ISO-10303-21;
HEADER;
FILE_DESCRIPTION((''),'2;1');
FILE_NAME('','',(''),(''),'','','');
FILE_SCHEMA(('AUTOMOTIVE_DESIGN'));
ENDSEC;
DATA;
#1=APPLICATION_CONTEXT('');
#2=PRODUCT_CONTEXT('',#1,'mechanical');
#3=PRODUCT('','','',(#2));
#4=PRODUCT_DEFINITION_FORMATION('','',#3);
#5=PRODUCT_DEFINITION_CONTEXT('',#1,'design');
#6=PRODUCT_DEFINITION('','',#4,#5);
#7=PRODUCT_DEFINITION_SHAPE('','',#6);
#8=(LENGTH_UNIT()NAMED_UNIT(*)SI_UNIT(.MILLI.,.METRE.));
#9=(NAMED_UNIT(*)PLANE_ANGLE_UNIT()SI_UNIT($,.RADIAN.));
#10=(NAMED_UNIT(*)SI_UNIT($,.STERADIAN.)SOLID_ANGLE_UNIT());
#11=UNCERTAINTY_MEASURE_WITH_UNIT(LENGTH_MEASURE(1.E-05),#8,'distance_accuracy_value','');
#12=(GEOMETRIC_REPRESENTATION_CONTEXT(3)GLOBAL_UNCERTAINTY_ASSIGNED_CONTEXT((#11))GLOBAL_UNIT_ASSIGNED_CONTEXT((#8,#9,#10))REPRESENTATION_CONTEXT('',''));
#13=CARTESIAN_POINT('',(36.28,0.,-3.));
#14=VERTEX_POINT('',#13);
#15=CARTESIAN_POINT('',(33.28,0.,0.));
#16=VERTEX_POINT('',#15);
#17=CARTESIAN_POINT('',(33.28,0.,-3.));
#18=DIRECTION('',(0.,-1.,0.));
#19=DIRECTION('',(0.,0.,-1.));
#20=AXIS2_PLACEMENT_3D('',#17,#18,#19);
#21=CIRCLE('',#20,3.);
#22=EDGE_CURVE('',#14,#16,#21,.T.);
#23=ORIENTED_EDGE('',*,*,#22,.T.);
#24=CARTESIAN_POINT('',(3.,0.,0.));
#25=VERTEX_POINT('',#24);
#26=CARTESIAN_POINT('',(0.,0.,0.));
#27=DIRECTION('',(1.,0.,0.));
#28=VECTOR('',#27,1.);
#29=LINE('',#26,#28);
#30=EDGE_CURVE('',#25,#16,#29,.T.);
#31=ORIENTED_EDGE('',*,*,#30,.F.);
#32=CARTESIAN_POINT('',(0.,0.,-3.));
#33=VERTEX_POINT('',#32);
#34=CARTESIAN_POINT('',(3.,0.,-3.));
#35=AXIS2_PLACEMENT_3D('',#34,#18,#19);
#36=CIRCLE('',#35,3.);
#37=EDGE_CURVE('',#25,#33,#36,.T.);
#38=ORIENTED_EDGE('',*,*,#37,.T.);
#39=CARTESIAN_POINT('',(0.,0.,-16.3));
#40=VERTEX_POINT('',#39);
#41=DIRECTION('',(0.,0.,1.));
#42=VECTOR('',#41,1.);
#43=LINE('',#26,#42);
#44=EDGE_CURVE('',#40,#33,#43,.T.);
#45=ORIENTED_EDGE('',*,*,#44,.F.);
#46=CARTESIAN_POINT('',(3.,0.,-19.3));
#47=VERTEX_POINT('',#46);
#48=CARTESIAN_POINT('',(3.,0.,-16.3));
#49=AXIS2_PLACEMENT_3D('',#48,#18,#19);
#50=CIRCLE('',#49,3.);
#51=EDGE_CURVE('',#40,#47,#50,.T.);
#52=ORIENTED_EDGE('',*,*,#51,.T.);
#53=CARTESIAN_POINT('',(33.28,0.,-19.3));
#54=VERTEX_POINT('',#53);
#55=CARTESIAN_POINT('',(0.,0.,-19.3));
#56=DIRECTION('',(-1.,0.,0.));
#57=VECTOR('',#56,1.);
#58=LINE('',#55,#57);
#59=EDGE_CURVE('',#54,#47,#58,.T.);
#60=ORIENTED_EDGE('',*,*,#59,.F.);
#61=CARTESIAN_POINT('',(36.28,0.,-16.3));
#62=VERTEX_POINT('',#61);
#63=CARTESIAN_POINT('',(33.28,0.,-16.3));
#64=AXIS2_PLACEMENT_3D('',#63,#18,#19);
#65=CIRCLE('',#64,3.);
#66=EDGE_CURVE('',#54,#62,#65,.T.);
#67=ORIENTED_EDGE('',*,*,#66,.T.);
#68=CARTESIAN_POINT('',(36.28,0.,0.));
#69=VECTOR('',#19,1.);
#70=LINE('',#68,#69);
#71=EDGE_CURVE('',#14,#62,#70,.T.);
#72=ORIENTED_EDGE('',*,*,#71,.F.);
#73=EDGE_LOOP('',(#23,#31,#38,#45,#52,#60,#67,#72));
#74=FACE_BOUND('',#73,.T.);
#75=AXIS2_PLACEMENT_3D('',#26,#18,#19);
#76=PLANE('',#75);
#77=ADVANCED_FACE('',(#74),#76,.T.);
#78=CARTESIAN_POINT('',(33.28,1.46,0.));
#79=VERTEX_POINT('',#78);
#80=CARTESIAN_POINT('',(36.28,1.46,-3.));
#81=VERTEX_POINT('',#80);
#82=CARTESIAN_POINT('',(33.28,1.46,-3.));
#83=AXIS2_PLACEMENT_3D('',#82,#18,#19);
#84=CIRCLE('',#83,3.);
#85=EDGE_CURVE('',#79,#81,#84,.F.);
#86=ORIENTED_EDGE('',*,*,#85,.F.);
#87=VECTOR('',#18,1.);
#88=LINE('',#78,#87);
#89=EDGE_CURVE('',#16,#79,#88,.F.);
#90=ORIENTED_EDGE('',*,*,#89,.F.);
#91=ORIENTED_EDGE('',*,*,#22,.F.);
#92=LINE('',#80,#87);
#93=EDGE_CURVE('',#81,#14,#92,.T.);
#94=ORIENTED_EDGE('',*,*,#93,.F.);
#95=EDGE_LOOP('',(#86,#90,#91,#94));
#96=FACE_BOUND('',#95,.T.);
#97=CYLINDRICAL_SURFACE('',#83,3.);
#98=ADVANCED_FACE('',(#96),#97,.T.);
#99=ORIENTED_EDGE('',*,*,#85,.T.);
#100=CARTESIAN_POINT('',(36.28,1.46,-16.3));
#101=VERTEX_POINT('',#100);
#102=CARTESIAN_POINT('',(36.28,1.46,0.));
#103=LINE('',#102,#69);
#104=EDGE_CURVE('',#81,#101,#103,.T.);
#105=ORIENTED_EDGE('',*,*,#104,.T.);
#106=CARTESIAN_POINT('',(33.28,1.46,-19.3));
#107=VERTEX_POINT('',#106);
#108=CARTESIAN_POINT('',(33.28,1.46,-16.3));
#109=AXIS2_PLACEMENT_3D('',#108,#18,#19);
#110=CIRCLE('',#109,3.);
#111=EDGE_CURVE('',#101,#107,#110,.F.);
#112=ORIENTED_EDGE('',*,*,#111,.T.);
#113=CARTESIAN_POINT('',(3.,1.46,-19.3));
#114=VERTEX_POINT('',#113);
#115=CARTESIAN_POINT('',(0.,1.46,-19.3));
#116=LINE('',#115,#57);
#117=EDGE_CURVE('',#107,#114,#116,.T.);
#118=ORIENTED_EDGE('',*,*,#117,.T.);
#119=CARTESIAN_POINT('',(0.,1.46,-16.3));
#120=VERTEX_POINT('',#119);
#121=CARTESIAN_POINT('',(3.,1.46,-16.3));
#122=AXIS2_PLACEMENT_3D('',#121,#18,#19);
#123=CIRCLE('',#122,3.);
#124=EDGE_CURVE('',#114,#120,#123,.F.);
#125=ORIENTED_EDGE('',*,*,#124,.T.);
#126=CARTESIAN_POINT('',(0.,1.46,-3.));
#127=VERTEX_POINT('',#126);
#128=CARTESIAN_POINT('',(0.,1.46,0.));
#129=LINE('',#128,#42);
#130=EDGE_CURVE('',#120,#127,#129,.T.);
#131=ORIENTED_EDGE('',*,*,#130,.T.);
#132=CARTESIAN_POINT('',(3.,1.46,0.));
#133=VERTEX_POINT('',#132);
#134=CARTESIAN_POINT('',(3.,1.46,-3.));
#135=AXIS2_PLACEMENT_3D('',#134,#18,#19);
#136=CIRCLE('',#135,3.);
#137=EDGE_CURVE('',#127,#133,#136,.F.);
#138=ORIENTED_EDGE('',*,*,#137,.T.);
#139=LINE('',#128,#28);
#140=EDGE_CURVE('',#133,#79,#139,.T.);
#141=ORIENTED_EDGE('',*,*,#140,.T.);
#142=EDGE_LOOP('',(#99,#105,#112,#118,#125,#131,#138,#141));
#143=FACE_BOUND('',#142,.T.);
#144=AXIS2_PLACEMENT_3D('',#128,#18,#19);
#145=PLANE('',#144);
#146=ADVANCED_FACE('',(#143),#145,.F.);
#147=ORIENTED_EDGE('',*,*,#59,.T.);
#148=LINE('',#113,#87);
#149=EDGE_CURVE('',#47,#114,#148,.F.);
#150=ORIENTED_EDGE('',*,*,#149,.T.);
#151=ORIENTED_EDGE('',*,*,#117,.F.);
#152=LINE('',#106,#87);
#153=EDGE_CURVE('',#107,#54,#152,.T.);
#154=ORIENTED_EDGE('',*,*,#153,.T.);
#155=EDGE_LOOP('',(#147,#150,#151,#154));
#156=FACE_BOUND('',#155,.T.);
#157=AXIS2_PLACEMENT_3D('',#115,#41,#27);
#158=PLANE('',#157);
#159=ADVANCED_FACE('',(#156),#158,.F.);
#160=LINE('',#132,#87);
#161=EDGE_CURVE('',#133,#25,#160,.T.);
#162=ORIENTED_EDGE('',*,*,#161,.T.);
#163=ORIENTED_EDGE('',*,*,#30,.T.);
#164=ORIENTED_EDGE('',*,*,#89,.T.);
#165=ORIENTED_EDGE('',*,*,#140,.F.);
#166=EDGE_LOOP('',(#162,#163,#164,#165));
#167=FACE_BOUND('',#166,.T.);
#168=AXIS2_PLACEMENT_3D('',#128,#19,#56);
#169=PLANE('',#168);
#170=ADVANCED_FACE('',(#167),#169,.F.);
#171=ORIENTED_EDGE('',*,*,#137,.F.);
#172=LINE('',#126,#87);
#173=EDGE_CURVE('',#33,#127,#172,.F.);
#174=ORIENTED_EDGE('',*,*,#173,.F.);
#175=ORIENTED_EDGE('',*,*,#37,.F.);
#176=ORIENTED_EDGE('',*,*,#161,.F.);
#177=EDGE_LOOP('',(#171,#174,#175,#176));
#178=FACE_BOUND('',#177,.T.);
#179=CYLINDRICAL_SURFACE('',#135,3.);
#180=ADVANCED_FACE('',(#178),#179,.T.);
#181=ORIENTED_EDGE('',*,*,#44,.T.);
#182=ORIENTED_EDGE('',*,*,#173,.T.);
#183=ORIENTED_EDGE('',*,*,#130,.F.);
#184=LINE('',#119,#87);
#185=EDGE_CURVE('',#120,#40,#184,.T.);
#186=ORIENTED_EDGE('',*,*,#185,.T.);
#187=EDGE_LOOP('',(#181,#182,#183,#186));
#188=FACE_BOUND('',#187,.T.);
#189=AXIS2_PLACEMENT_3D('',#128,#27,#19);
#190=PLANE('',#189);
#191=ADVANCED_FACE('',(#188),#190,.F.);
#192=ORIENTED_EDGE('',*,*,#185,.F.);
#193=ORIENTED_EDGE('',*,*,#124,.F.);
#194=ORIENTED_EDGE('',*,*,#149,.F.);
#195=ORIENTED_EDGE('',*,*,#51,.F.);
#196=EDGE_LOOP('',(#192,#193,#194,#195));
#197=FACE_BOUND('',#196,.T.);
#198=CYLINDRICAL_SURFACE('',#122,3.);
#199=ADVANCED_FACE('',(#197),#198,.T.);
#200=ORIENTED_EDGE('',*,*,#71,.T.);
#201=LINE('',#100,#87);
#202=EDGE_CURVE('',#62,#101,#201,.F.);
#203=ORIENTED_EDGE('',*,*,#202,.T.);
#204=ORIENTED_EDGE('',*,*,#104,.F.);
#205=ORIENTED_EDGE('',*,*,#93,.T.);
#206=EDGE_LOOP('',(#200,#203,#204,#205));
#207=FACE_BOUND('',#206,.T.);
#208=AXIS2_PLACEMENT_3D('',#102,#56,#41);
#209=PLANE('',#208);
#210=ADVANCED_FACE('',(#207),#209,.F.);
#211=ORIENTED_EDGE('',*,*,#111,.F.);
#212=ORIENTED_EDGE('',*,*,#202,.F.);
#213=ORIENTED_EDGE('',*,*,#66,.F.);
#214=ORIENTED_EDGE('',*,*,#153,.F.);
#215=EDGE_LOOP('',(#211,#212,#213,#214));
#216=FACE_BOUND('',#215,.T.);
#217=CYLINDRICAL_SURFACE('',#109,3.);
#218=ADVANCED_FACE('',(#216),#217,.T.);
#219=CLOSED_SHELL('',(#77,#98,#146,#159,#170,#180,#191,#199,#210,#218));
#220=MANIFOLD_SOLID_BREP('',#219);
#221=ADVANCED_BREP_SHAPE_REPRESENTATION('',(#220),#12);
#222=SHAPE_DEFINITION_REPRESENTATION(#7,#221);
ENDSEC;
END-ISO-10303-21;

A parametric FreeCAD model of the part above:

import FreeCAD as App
import Part
import Sketcher

V = App.Vector
Q = App.Units.Quantity


def edges_at(feature, points):
    """Names of the edges that pass closest to the given points."""
    edges = feature.Shape.Edges
    near = lambda p: min(range(len(edges)), key=lambda i: edges[i].distToShape(Part.Vertex(*p))[0])
    return sorted({f"Edge{near(p) + 1}" for p in points})

doc = App.newDocument("Part")
body = doc.addObject("PartDesign::Body", "Body")

# Sketch on XZ plane
sketch1 = body.newObject("Sketcher::SketchObject", "Sketch")
sketch1.AttachmentSupport = (doc.getObject("XZ_Plane"), [""])
sketch1.MapMode = "FlatFace"
sketch1.addGeometry(Part.LineSegment(V(0, -19.3, 0), V(0, 0, 0)), False)
sketch1.addGeometry(Part.LineSegment(V(0, 0, 0), V(36.28, 0, 0)), False)
sketch1.addGeometry(Part.LineSegment(V(36.28, 0, 0), V(36.28, -19.3, 0)), False)
sketch1.addGeometry(Part.LineSegment(V(36.28, -19.3, 0), V(0, -19.3, 0)), False)
sketch1.addConstraint(Sketcher.Constraint("Coincident", 0, 2, 1, 1))
sketch1.addConstraint(Sketcher.Constraint("Coincident", 1, 2, 2, 1))
sketch1.addConstraint(Sketcher.Constraint("Coincident", 2, 2, 3, 1))
sketch1.addConstraint(Sketcher.Constraint("Coincident", 3, 2, 0, 1))
sketch1.addConstraint(Sketcher.Constraint("Vertical", 0))
sketch1.addConstraint(Sketcher.Constraint("Horizontal", 1))
sketch1.addConstraint(Sketcher.Constraint("Vertical", 2))
sketch1.addConstraint(Sketcher.Constraint("Horizontal", 3))
sketch1.addConstraint(Sketcher.Constraint("Coincident", 0, 2, -1, 1))
sketch1.addConstraint(Sketcher.Constraint("DistanceY", 0, 1, 0, 2, Q("19.3 mm")))
sketch1.addConstraint(Sketcher.Constraint("DistanceX", 1, 1, 1, 2, Q("36.28 mm")))
pad1 = body.newObject("PartDesign::Pad", "Pad")
pad1.Profile = sketch1
pad1.Length = 1.46
pad1.Reversed = True
doc.recompute()

fillet = body.newObject("PartDesign::Fillet", "Fillet")
fillet.Base = (pad1, edges_at(pad1, [
    (0, 0.73, -19.3),
    (36.28, 0.73, -19.3),
    (36.28, 0.73, 0),
    (0, 0.73, 0),
]))
fillet.Radius = 3

doc.recompute()
